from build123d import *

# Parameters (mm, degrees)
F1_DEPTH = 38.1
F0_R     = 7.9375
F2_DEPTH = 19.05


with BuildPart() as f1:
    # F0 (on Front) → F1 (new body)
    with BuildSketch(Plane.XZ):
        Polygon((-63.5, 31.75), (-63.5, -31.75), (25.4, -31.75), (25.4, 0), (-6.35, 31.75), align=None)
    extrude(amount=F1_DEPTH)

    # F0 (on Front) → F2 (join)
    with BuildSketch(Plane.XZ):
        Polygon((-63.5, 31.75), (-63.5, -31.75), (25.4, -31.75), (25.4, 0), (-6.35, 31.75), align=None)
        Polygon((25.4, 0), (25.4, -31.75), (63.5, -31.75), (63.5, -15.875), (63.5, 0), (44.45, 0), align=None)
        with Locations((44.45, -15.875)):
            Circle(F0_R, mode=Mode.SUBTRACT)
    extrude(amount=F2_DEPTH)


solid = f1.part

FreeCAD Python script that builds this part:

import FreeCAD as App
import Part
import Sketcher
from FreeCAD import Vector
Q = App.Units.Quantity


def add_polygon(sketch, points):
    """Adds a closed chain of lines whose ends are joined by coincident constraints."""
    first, n = sketch.GeometryCount, len(points)
    for a, b in zip(points, points[1:] + points[:1]):
        sketch.addGeometry(Part.LineSegment(App.Vector(*a, 0), App.Vector(*b, 0)), False)
    for i in range(n):
        sketch.addConstraint(Sketcher.Constraint("Coincident", first + i, 2, first + (i + 1) % n, 1))

doc = App.newDocument("Part")
body = doc.addObject("PartDesign::Body", "Body")

sketch1 = body.newObject("Sketcher::SketchObject", "Sketch")
sketch1.AttachmentSupport = (doc.getObject("XZ_Plane"), [""])
sketch1.MapMode = "FlatFace"
add_polygon(sketch1, [(-64, 32), (-64, -32), (25, -32), (25, 0), (-6, 32)])
sketch1.addConstraint(Sketcher.Constraint("Vertical", 0))
sketch1.addConstraint(Sketcher.Constraint("Horizontal", 1))
sketch1.addConstraint(Sketcher.Constraint("Vertical", 2))
sketch1.addConstraint(Sketcher.Constraint("Horizontal", 4))
sketch1.addConstraint(Sketcher.Constraint("PointOnObject", 2, 2, -1))
sketch1.addConstraint(Sketcher.Constraint("DistanceX", 1, 1, 1, 2, Q("3.5 in")))
sketch1.addConstraint(Sketcher.Constraint("DistanceY", 0, 2, 0, 1, Q("2.5 in")))
sketch1.addConstraint(Sketcher.Constraint("DistanceX", -1, 1, 1, 2, Q("1 in")))
sketch1.addConstraint(Sketcher.Constraint("Angle", 3, Q("135 deg")))
sketch1.addConstraint(Sketcher.Constraint("DistanceX", 4, 2, 4, 1, Q("2.25 in")))
pad1 = body.newObject("PartDesign::Pad", "Pad")
pad1.Profile = sketch1
pad1.Length = Q("1.5 in")

sketch2 = body.newObject("Sketcher::SketchObject", "Sketch001")
sketch2.AttachmentSupport = (doc.getObject("XZ_Plane"), [""])
sketch2.MapMode = "FlatFace"
add_polygon(sketch2, [(-64, 32), (-64, -32), (64, -32), (64, 0), (25, 0), (-6, 32)])
sketch2.addGeometry(Part.Circle(Vector(44, -16, 0), Vector(0, 0, 1), 8), False)
sketch2.addConstraint(Sketcher.Constraint("Vertical", 0))
sketch2.addConstraint(Sketcher.Constraint("Horizontal", 1))
sketch2.addConstraint(Sketcher.Constraint("Vertical", 2))
sketch2.addConstraint(Sketcher.Constraint("Horizontal", 3))
sketch2.addConstraint(Sketcher.Constraint("Horizontal", 5))
sketch2.addConstraint(Sketcher.Constraint("Symmetric", 1, 2, 5, 2, -1, 1))
sketch2.addConstraint(Sketcher.Constraint("PointOnObject", 2, 2, -1))
sketch2.addConstraint(Sketcher.Constraint("DistanceX", 1, 1, 1, 2, Q("5 in")))
sketch2.addConstraint(Sketcher.Constraint("Diameter", 6, Q("0.625 in")))
sketch2.addConstraint(Sketcher.Constraint("DistanceX", 3, 2, 3, 1, Q("1.5 in")))
sketch2.addConstraint(Sketcher.Constraint("DistanceY", 0, 2, 0, 1, Q("2.5 in")))
sketch2.addConstraint(Sketcher.Constraint("Angle", 4, Q("135 deg")))
sketch2.addConstraint(Sketcher.Constraint("DistanceX", 4, 2, 6, 3, Q("2 in")))
sketch2.addConstraint(Sketcher.Constraint("DistanceY", 6, 3, -1, 1, Q("0.625 in")))
pad2 = body.newObject("PartDesign::Pad", "Pad001")
pad2.Profile = sketch2
pad2.Length = Q("0.75 in")

doc.recompute()
